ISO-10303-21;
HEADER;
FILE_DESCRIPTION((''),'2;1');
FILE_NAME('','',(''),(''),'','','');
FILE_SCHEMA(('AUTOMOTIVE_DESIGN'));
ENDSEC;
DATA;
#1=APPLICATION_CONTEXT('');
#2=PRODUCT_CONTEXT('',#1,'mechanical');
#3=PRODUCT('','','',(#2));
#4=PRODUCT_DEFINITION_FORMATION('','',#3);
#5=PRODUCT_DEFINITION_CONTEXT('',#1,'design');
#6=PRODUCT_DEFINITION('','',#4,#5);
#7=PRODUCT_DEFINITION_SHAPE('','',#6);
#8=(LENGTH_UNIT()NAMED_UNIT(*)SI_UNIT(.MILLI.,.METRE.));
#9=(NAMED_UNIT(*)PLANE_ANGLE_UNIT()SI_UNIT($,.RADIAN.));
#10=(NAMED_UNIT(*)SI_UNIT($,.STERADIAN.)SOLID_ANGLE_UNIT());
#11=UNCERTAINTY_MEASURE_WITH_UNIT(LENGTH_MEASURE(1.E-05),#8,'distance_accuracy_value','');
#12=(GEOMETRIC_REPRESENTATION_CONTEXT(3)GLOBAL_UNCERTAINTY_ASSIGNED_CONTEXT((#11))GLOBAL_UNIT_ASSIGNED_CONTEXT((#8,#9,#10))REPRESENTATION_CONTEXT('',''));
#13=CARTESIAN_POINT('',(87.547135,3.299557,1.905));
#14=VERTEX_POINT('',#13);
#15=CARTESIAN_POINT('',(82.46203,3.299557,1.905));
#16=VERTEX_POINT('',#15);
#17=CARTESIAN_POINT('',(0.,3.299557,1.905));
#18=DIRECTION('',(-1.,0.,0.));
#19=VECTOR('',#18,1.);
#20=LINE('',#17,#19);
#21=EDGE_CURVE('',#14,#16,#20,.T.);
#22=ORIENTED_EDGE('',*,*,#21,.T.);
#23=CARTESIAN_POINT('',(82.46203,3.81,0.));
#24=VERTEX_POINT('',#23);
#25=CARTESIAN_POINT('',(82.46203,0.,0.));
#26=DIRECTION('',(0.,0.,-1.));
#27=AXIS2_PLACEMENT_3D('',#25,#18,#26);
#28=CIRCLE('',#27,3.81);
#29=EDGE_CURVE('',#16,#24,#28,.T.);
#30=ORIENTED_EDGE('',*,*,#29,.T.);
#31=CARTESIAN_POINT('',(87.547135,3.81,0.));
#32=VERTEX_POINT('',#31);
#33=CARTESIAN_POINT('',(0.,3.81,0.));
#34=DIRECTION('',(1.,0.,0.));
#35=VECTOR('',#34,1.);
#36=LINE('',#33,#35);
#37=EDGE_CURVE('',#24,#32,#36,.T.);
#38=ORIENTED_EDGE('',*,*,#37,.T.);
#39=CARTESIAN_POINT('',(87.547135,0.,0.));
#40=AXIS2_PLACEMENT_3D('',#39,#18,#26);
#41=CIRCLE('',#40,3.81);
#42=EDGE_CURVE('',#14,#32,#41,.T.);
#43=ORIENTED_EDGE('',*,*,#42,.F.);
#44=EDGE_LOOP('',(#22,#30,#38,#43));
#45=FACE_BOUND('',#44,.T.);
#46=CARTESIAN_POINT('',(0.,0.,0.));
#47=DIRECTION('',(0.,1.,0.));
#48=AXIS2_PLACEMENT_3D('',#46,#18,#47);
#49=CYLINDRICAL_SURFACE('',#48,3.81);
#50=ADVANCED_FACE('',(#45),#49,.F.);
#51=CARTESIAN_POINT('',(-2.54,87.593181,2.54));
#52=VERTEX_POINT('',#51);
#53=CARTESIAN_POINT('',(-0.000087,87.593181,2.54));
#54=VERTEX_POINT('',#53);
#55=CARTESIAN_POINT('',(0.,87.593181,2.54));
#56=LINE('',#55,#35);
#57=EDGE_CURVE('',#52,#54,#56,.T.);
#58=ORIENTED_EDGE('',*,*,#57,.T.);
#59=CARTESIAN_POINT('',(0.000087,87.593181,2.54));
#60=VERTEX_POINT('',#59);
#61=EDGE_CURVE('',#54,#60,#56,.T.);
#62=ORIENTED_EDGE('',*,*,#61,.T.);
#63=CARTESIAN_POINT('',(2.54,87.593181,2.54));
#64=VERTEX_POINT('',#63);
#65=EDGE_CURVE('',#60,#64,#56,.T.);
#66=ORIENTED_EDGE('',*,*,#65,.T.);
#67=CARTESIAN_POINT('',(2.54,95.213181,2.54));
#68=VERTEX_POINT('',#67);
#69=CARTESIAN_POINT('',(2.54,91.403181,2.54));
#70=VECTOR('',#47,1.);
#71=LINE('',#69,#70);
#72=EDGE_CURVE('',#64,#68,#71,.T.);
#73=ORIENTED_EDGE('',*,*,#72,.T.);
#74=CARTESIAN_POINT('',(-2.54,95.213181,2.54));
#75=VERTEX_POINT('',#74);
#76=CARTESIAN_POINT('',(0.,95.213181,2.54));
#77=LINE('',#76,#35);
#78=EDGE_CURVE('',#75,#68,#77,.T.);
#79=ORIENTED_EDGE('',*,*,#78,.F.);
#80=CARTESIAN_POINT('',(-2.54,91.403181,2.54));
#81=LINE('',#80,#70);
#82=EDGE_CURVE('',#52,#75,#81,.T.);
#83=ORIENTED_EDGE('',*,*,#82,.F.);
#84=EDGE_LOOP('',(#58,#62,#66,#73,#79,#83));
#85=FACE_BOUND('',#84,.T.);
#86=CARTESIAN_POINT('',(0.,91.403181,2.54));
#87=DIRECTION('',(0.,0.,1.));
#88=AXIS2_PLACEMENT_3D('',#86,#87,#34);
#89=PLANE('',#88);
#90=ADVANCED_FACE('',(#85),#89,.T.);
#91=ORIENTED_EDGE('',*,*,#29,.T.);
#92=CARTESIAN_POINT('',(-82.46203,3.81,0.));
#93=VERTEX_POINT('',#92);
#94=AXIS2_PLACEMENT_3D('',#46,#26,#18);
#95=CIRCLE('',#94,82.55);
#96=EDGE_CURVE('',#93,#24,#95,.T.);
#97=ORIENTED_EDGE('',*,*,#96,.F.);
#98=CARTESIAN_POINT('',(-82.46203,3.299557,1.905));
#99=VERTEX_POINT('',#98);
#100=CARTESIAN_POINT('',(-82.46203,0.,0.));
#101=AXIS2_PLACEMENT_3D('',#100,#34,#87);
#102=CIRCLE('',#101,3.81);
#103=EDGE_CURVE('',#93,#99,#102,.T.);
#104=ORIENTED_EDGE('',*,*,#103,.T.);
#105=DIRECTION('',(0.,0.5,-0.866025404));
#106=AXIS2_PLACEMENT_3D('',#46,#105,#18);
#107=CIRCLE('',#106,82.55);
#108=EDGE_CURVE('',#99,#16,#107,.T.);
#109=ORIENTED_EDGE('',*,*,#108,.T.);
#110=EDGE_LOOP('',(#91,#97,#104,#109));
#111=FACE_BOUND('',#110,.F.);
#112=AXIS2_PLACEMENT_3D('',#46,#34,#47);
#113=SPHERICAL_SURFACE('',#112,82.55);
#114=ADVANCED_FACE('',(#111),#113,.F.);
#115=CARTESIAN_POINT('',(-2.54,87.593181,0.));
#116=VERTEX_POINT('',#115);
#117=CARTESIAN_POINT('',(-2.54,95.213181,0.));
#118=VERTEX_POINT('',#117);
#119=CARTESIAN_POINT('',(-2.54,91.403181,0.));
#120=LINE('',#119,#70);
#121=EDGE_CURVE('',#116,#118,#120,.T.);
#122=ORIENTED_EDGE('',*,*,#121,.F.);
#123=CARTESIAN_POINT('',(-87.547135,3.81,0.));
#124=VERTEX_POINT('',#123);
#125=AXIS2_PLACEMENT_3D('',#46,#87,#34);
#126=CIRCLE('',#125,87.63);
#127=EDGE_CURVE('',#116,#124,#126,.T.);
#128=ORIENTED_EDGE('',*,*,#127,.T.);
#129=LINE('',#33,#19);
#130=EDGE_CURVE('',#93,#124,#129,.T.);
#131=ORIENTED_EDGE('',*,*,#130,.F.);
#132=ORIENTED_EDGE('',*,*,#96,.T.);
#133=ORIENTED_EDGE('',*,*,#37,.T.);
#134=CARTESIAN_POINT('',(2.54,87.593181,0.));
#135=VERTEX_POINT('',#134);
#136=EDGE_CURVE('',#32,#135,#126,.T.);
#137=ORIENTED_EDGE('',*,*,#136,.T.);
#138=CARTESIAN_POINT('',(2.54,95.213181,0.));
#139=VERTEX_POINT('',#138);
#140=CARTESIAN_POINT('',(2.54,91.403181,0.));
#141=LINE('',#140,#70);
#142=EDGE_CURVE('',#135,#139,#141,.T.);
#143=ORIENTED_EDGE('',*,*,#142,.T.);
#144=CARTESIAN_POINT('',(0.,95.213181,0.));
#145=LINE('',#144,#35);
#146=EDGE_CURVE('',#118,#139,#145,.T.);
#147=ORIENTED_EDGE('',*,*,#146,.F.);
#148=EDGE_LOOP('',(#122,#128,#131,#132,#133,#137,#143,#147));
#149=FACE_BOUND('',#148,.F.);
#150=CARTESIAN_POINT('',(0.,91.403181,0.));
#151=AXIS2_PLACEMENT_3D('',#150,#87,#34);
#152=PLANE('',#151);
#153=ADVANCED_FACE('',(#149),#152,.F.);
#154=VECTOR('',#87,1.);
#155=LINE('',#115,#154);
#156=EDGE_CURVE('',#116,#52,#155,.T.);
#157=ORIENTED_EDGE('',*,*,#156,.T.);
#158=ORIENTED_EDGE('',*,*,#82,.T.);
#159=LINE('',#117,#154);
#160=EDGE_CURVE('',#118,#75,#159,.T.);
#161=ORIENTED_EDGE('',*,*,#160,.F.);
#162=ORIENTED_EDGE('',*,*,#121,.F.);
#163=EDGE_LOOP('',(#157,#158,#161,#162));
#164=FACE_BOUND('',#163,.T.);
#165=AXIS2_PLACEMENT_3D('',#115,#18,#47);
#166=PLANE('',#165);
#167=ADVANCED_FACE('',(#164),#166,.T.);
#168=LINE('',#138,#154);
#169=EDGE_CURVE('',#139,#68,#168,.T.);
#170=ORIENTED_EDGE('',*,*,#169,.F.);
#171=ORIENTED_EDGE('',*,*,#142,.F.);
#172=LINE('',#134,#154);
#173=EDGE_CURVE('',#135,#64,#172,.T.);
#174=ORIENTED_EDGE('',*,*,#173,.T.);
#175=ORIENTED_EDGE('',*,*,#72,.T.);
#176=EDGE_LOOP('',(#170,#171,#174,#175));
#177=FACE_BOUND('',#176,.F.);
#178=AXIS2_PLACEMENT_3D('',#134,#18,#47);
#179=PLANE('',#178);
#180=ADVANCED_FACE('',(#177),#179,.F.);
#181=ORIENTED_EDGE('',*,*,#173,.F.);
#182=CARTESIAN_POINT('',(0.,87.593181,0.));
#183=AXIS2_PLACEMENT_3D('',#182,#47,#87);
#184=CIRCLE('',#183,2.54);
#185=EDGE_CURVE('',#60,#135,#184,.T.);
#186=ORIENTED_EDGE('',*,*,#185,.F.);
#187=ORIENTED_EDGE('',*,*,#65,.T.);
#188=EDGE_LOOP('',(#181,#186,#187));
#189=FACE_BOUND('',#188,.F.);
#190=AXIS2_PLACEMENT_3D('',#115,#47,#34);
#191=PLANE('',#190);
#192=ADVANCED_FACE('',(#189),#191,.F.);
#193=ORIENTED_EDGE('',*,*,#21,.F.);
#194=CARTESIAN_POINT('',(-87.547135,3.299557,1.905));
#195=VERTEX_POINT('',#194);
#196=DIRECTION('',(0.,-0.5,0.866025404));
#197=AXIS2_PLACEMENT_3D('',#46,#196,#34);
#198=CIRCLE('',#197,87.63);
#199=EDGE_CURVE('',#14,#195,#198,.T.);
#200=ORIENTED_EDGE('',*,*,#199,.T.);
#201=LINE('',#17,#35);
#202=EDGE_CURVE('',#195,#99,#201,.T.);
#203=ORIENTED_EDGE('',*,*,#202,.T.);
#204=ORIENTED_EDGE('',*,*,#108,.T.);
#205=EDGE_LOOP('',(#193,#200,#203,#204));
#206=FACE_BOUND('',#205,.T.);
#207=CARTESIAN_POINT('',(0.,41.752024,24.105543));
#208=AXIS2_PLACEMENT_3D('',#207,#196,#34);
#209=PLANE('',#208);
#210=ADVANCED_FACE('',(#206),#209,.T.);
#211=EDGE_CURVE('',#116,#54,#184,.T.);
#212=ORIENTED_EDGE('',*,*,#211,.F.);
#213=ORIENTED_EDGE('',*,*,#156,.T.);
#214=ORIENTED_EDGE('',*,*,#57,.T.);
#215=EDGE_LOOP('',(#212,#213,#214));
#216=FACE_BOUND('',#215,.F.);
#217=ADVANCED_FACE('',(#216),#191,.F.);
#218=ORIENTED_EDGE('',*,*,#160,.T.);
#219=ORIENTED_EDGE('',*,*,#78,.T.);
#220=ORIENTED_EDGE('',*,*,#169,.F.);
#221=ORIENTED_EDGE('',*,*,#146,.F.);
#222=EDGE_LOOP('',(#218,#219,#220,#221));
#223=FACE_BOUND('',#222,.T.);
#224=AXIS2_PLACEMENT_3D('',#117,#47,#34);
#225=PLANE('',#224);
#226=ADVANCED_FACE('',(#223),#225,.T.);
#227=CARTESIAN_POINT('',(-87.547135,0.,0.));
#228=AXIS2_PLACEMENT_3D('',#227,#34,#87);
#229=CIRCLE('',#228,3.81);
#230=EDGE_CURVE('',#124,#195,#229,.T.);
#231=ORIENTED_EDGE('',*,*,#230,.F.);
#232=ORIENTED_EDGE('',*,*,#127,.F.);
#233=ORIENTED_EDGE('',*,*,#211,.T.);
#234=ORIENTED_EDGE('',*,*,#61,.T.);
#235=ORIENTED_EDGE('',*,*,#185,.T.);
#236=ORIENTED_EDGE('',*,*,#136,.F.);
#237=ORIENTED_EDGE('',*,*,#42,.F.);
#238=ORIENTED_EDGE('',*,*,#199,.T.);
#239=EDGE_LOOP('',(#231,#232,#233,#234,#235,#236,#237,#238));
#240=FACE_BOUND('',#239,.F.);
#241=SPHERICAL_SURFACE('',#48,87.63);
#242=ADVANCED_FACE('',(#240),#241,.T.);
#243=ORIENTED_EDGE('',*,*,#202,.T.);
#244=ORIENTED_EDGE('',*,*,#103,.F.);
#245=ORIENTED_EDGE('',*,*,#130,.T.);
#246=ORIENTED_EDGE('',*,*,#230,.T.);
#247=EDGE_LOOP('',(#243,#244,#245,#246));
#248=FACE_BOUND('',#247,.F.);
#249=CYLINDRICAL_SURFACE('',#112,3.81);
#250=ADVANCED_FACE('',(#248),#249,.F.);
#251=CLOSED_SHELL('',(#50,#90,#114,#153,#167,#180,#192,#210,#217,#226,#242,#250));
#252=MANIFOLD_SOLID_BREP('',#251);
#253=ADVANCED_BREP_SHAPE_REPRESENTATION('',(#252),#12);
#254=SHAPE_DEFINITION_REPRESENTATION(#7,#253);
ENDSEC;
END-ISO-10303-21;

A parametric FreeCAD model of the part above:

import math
import FreeCAD as App
import Part
import Sketcher
from FreeCAD import Vector
Q = App.Units.Quantity


def add_polygon(sketch, points):
    """Adds a closed chain of lines whose ends are joined by coincident constraints."""
    first, n = sketch.GeometryCount, len(points)
    for a, b in zip(points, points[1:] + points[:1]):
        sketch.addGeometry(Part.LineSegment(App.Vector(*a, 0), App.Vector(*b, 0)), False)
    for i in range(n):
        sketch.addConstraint(Sketcher.Constraint("Coincident", first + i, 2, first + (i + 1) % n, 1))

doc = App.newDocument("Part")
body = doc.addObject("PartDesign::Body", "Body")

sketch1 = body.newObject("Sketcher::SketchObject", "Sketch")
sketch1.AttachmentSupport = (doc.getObject("XY_Plane"), [""])
sketch1.MapMode = "FlatFace"
sketch1.addGeometry([
    Part.LineSegment(Vector(-88, 0, 0), Vector(-83, 0, 0)),
    Part.ArcOfCircle(Part.Circle(Vector(0, 0, 0), Vector(0, 0, 1), 83), math.radians(0), math.radians(180)),
    Part.LineSegment(Vector(83, 0, 0), Vector(88, 0, 0)),
    Part.ArcOfCircle(Part.Circle(Vector(0, 0, 0), Vector(0, 0, 1), 88), math.radians(0), math.radians(180)),
], False)
sketch1.addConstraint([
    Sketcher.Constraint("Coincident", 0, 2, 1, 2),
    Sketcher.Constraint("Coincident", 1, 1, 2, 1),
    Sketcher.Constraint("Coincident", 2, 2, 3, 1),
    Sketcher.Constraint("Coincident", 3, 2, 0, 1),
    Sketcher.Constraint("Horizontal", 0),
    Sketcher.Constraint("Horizontal", 2),
    Sketcher.Constraint("Coincident", 1, 3, -1, 1),
    Sketcher.Constraint("Coincident", 3, 3, -1, 1),
    Sketcher.Constraint("PointOnObject", 0, 2, -1),
    Sketcher.Constraint("PointOnObject", 1, 1, -1),
    Sketcher.Constraint("Radius", 1, Q("3.25 in")),
    Sketcher.Constraint("Radius", 3, Q("3.45 in")),
])
revolution = body.newObject("PartDesign::Revolution", "Revolution")
revolution.Profile = sketch1
revolution.ReferenceAxis = (sketch1, ["H_Axis"])
revolution.Angle = 30

sketch2 = body.newObject("Sketcher::SketchObject", "Sketch001")
sketch2.AttachmentSupport = (doc.getObject("YZ_Plane"), [""])
sketch2.MapMode = "FlatFace"
sketch2.addGeometry(Part.Circle(Vector(0, 0, 0), Vector(0, 0, 1), 3.8), False)
sketch2.addConstraint([
    Sketcher.Constraint("Coincident", 0, 3, -1, 1),
    Sketcher.Constraint("Diameter", 0, Q("0.3 in")),
])
pocket1 = body.newObject("PartDesign::Pocket", "Pocket")
pocket1.Profile = sketch2
pocket1.Type = "ThroughAll"
pocket1.Midplane = True

sketch3 = body.newObject("Sketcher::SketchObject", "Sketch002")
sketch3.AttachmentSupport = (doc.getObject("XY_Plane"), [""])
sketch3.MapMode = "FlatFace"
add_polygon(sketch3, [(-3, 95), (-3, 88), (3, 88), (3, 95)])
sketch3.addConstraint([
    Sketcher.Constraint("Vertical", 0),
    Sketcher.Constraint("Horizontal", 1),
    Sketcher.Constraint("Vertical", 2),
    Sketcher.Constraint("Horizontal", 3),
    Sketcher.Constraint("DistanceX", 1, 1, 1, 2, Q("0.2 in")),
    Sketcher.Constraint("DistanceY", 0, 2, 0, 1, Q("0.3 in")),
    Sketcher.Constraint("DistanceX", 0, 2, -1, 1, Q("0.1 in")),
    Sketcher.Constraint("DistanceY", -1, 1, 0, 2, Q("87.593181 mm")),
])
pad1 = body.newObject("PartDesign::Pad", "Pad")
pad1.Profile = sketch3
pad1.Length = Q("0.1 in")

doc.recompute()
